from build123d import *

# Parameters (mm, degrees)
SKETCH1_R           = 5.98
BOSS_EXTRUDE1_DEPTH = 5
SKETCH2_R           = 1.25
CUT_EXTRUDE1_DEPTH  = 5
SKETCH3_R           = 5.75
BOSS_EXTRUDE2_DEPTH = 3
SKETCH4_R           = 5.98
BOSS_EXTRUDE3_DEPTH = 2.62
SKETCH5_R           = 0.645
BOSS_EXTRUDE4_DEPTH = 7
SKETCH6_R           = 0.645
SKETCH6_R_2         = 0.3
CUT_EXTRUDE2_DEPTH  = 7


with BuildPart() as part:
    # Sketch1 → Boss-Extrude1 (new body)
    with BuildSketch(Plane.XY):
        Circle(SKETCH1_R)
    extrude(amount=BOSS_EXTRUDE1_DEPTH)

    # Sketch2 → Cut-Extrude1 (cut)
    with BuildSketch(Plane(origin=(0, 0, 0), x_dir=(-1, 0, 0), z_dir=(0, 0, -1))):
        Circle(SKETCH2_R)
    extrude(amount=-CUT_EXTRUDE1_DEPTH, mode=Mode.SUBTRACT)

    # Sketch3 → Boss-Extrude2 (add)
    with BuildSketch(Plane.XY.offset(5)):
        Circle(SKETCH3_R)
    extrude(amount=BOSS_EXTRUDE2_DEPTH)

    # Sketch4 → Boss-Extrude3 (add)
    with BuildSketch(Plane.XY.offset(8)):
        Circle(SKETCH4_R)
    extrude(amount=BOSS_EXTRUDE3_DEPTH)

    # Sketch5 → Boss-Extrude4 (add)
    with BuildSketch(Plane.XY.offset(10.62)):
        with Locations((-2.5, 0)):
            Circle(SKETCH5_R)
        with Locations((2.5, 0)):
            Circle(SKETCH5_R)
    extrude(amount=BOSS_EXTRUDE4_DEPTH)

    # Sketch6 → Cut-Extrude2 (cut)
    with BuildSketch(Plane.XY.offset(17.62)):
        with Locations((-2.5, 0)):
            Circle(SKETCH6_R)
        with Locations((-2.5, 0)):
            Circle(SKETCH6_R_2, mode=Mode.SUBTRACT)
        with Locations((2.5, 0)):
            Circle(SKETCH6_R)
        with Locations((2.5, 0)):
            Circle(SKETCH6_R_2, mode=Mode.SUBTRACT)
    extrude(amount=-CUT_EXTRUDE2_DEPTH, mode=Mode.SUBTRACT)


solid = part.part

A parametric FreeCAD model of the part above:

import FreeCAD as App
import Part
import Sketcher

doc = App.newDocument("Part")
body = doc.addObject("PartDesign::Body", "Body")

# Sketch on XY plane
sketch1 = doc.addObject("Sketcher::SketchObject", "Sketch")
body.addObject(sketch1)
sketch1.AttachmentSupport = (doc.XY_Plane, [""])
sketch1.MapMode = "FlatFace"
sketch1.addGeometry(Part.Circle(App.Vector(0, 0, 0), App.Vector(0, 0, 1), 6), False)
sketch1.addConstraint(Sketcher.Constraint("Coincident", 0, 3, -1, 1))
sketch1.addConstraint(Sketcher.Constraint("Diameter", 0, 11.96))
pad1 = doc.addObject("PartDesign::Pad", "Pad")
body.addObject(pad1)
pad1.Profile = sketch1
pad1.Length = 5

# Sketch on XY plane
sketch2 = doc.addObject("Sketcher::SketchObject", "Sketch001")
body.addObject(sketch2)
sketch2.AttachmentSupport = (doc.XY_Plane, [""])
sketch2.MapMode = "FlatFace"
sketch2.addGeometry(Part.Circle(App.Vector(0, 0, 0), App.Vector(0, 0, 1), 1.2), False)
sketch2.addConstraint(Sketcher.Constraint("Coincident", 0, 3, -1, 1))
sketch2.addConstraint(Sketcher.Constraint("Diameter", 0, 2.5))
pocket1 = doc.addObject("PartDesign::Pocket", "Pocket")
body.addObject(pocket1)
pocket1.Profile = sketch2
pocket1.Length = 5
pocket1.Reversed = True

# Sketch on XY plane
sketch3 = doc.addObject("Sketcher::SketchObject", "Sketch002")
body.addObject(sketch3)
sketch3.AttachmentSupport = (doc.XY_Plane, [""])
sketch3.MapMode = "FlatFace"
sketch3.AttachmentOffset = App.Placement(App.Vector(0, 0, 5), App.Rotation())
sketch3.addGeometry(Part.Circle(App.Vector(0, 0, 0), App.Vector(0, 0, 1), 6), False)
sketch3.addConstraint(Sketcher.Constraint("Coincident", 0, 3, -1, 1))
sketch3.addConstraint(Sketcher.Constraint("Diameter", 0, 11.5))
pad2 = doc.addObject("PartDesign::Pad", "Pad001")
body.addObject(pad2)
pad2.Profile = sketch3
pad2.Length = 3

# Sketch on XY plane
sketch4 = doc.addObject("Sketcher::SketchObject", "Sketch003")
body.addObject(sketch4)
sketch4.AttachmentSupport = (doc.XY_Plane, [""])
sketch4.MapMode = "FlatFace"
sketch4.AttachmentOffset = App.Placement(App.Vector(0, 0, 8), App.Rotation())
sketch4.addGeometry(Part.Circle(App.Vector(0, 0, 0), App.Vector(0, 0, 1), 6), False)
sketch4.addConstraint(Sketcher.Constraint("Coincident", 0, 3, -1, 1))
sketch4.addConstraint(Sketcher.Constraint("Diameter", 0, 11.96))
pad3 = doc.addObject("PartDesign::Pad", "Pad002")
body.addObject(pad3)
pad3.Profile = sketch4
pad3.Length = 2.62

# Sketch on XY plane
sketch5 = doc.addObject("Sketcher::SketchObject", "Sketch004")
body.addObject(sketch5)
sketch5.AttachmentSupport = (doc.XY_Plane, [""])
sketch5.MapMode = "FlatFace"
sketch5.AttachmentOffset = App.Placement(App.Vector(0, 0, 10.62), App.Rotation())
sketch5.addGeometry(Part.Circle(App.Vector(-2.5, 0, 0), App.Vector(0, 0, 1), 0.6), False)
sketch5.addGeometry(Part.Circle(App.Vector(2.5, 0, 0), App.Vector(0, 0, 1), 0.6), False)
sketch5.addConstraint(Sketcher.Constraint("Equal", 0, 1))
sketch5.addConstraint(Sketcher.Constraint("Symmetric", 0, 3, 1, 3, -1, 1))
sketch5.addConstraint(Sketcher.Constraint("PointOnObject", 0, 3, -1))
sketch5.addConstraint(Sketcher.Constraint("Diameter", 0, 1.29))
sketch5.addConstraint(Sketcher.Constraint("DistanceX", 0, 3, 1, 3, 5.0))
pad4 = doc.addObject("PartDesign::Pad", "Pad003")
body.addObject(pad4)
pad4.Profile = sketch5
pad4.Length = 7

# Sketch on XY plane
sketch6 = doc.addObject("Sketcher::SketchObject", "Sketch005")
body.addObject(sketch6)
sketch6.AttachmentSupport = (doc.XY_Plane, [""])
sketch6.MapMode = "FlatFace"
sketch6.AttachmentOffset = App.Placement(App.Vector(0, 0, 17.62), App.Rotation())
sketch6.addGeometry(Part.Circle(App.Vector(-2.5, 0, 0), App.Vector(0, 0, 1), 0.65), False)
sketch6.addGeometry(Part.Circle(App.Vector(-2.5, 0, 0), App.Vector(0, 0, 1), 0.3), False)
sketch6.addGeometry(Part.Circle(App.Vector(2.5, 0, 0), App.Vector(0, 0, 1), 0.65), False)
sketch6.addGeometry(Part.Circle(App.Vector(2.5, 0, 0), App.Vector(0, 0, 1), 0.3), False)
sketch6.addConstraint(Sketcher.Constraint("Coincident", 1, 3, 0, 3))
sketch6.addConstraint(Sketcher.Constraint("Coincident", 3, 3, 2, 3))
sketch6.addConstraint(Sketcher.Constraint("Equal", 0, 2))
sketch6.addConstraint(Sketcher.Constraint("Equal", 1, 3))
sketch6.addConstraint(Sketcher.Constraint("Symmetric", 0, 3, 2, 3, -1, 1))
sketch6.addConstraint(Sketcher.Constraint("PointOnObject", 0, 3, -1))
sketch6.addConstraint(Sketcher.Constraint("Diameter", 1, 0.6))
sketch6.addConstraint(Sketcher.Constraint("Diameter", 0, 1.29))
sketch6.addConstraint(Sketcher.Constraint("DistanceX", 0, 3, 2, 3, 5.0))
pocket2 = doc.addObject("PartDesign::Pocket", "Pocket001")
body.addObject(pocket2)
pocket2.Profile = sketch6
pocket2.Length = 7

doc.recompute()
